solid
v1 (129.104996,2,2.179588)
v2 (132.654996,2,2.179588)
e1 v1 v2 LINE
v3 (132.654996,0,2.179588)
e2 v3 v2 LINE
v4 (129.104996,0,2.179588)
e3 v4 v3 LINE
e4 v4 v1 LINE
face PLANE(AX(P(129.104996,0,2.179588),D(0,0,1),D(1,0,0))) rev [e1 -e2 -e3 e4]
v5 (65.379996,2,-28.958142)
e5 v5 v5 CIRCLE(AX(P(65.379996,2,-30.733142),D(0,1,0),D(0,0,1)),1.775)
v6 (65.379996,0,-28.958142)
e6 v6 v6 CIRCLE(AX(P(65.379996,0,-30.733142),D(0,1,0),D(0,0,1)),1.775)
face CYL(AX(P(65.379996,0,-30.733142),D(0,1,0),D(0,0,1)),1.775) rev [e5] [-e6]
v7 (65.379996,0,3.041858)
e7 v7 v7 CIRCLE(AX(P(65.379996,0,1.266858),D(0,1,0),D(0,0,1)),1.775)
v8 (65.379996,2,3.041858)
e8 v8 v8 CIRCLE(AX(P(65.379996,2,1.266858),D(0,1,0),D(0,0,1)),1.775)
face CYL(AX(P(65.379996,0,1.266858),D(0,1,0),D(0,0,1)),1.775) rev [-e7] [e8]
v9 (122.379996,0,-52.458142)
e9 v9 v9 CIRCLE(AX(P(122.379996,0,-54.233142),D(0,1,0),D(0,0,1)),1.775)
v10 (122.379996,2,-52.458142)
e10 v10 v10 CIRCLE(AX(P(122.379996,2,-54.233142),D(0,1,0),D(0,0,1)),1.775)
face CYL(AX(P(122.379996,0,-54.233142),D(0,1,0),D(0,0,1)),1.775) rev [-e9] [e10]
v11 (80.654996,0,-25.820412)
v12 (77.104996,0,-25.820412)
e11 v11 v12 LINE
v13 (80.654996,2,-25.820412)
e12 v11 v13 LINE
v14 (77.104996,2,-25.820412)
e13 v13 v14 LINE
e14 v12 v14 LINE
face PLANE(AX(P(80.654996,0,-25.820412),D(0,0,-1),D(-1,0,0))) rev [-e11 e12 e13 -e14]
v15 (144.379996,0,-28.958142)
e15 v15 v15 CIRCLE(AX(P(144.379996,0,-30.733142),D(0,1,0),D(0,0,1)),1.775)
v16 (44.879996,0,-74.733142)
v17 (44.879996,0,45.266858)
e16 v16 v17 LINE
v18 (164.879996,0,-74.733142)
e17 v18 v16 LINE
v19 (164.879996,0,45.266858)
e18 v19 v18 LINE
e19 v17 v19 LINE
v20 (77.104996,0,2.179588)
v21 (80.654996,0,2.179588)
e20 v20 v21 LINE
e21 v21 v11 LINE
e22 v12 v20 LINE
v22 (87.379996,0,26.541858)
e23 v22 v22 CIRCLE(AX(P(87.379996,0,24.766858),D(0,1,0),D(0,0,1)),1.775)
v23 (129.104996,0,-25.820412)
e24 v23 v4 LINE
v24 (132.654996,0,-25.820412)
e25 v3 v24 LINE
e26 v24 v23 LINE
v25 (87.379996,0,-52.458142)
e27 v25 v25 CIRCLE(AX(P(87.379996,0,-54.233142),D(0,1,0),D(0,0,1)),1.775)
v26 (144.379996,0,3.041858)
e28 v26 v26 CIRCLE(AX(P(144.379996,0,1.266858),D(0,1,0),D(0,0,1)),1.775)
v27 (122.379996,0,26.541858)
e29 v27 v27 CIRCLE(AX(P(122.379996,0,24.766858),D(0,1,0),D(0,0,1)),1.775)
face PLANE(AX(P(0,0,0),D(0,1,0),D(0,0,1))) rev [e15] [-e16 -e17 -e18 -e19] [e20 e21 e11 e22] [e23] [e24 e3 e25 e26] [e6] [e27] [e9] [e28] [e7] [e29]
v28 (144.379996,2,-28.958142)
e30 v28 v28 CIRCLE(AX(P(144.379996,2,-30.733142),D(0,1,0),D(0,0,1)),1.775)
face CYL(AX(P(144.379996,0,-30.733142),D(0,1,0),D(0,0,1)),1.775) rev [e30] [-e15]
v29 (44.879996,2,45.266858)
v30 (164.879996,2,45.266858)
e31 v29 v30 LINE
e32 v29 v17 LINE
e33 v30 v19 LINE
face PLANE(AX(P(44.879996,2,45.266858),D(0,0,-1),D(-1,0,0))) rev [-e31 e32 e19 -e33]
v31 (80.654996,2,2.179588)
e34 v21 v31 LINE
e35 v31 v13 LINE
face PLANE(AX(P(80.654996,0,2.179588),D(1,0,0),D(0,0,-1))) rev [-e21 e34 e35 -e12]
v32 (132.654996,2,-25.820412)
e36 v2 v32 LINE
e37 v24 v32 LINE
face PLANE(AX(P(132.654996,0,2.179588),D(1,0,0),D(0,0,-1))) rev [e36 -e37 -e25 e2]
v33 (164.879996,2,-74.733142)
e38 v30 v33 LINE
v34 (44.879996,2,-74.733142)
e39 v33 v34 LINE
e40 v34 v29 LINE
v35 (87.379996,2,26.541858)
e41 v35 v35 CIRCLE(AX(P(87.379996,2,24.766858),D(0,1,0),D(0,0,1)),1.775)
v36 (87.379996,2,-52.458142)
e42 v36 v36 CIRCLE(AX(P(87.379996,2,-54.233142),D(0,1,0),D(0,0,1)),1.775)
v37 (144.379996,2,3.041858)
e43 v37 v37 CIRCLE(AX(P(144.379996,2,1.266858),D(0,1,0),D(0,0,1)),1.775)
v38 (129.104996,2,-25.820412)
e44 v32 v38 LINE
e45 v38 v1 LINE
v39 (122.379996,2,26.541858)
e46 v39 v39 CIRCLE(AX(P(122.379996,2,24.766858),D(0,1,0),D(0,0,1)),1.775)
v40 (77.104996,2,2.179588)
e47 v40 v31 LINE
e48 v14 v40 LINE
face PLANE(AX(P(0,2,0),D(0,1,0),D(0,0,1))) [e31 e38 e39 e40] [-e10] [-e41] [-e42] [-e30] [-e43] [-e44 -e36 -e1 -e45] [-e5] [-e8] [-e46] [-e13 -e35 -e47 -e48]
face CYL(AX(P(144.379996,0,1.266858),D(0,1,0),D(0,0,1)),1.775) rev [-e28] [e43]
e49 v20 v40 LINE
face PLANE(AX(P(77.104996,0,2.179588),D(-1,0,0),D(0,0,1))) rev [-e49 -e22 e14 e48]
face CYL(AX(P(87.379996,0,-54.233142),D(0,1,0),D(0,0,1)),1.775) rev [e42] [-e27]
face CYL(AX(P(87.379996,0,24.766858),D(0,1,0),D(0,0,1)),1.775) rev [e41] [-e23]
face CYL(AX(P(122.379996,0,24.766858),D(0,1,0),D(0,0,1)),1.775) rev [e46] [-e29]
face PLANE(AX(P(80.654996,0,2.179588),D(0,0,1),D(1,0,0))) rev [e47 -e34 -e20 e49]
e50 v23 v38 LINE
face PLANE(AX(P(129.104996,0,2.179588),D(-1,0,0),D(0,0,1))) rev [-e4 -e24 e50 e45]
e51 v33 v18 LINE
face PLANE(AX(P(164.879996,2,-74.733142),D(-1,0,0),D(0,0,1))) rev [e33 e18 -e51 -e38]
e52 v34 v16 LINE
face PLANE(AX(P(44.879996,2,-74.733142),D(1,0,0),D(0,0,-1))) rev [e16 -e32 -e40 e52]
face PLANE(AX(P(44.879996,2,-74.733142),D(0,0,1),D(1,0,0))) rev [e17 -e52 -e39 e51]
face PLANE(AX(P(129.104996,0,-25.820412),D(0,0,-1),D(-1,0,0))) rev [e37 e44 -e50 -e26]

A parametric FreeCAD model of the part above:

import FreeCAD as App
import Part
import Sketcher

V = App.Vector
Q = App.Units.Quantity


def add_polygon(sketch, points):
    """Adds a closed chain of lines whose ends are joined by coincident constraints."""
    first, n = sketch.GeometryCount, len(points)
    for a, b in zip(points, points[1:] + points[:1]):
        sketch.addGeometry(Part.LineSegment(App.Vector(*a, 0), App.Vector(*b, 0)), False)
    for i in range(n):
        sketch.addConstraint(Sketcher.Constraint("Coincident", first + i, 2, first + (i + 1) % n, 1))

doc = App.newDocument("Part")
params = doc.addObject("Spreadsheet::Sheet", "Params")
for row, (alias, value) in enumerate([
    ("sketch1_width", "120 mm"),
    ("pad1_length", "2 mm"),
    ("sketch2_diameter", "3.55 mm"),
    ("sketch3_diameter", "3.55 mm"),
    ("sketch4_height", "28 mm"),
    ("sketch4_width", "3.55 mm"),
], start=1):
    params.set(f"A{row}", alias)
    params.set(f"B{row}", "=" + value)
    params.setAlias(f"B{row}", alias)

body = doc.addObject("PartDesign::Body", "Body")

# Sketch on XZ plane
sketch1 = doc.addObject("Sketcher::SketchObject", "Sketch")
body.addObject(sketch1)
sketch1.AttachmentSupport = (doc.XZ_Plane, [""])
sketch1.MapMode = "FlatFace"
add_polygon(sketch1, [(45, -75), (45, 45), (165, 45), (165, -75)])  # lines 0-3
sketch1.addConstraint([
    Sketcher.Constraint("Vertical", 0),
    Sketcher.Constraint("Horizontal", 1),
    Sketcher.Constraint("Vertical", 2),
    Sketcher.Constraint("Horizontal", 3),
    Sketcher.Constraint("Equal", 3, 0),
    Sketcher.Constraint("DistanceX", 1, 1, 1, 2, Q("120 mm")),
    Sketcher.Constraint("DistanceX", -1, 1, 0, 2, Q("44.879996 mm")),
    Sketcher.Constraint("DistanceY", -1, 1, 0, 2, Q("45.266858 mm")),
])
sketch1.setExpression("Constraints[9]", "Params.sketch1_width")
pad1 = doc.addObject("PartDesign::Pad", "Pad")
body.addObject(pad1)
pad1.Profile = sketch1
pad1.setExpression("Length", "Params.pad1_length")
pad1.Reversed = True

# Sketch on XZ plane
sketch2 = doc.addObject("Sketcher::SketchObject", "Sketch001")
body.addObject(sketch2)
sketch2.AttachmentSupport = (doc.XZ_Plane, [""])
sketch2.MapMode = "FlatFace"
sketch2.AttachmentOffset = App.Placement(V(0, 0, -2), App.Rotation())
sketch2.addGeometry([
    Part.Circle(V(65.4, -30.7, 0), V(0, 0, 1), 1.8),
    Part.Circle(V(65.4, 1.3, 0), V(0, 0, 1), 1.8),
    Part.Circle(V(144.4, 1.3, 0), V(0, 0, 1), 1.8),
    Part.Circle(V(144.4, -30.7, 0), V(0, 0, 1), 1.8),
], False)
sketch2.addConstraint([
    Sketcher.Constraint("Equal", 0, 1),
    Sketcher.Constraint("Equal", 1, 2),
    Sketcher.Constraint("Equal", 2, 3),
    Sketcher.Constraint("Horizontal", 1, 3, 2, 3),
    Sketcher.Constraint("Horizontal", 0, 3, 3, 3),
    Sketcher.Constraint("Vertical", 0, 3, 1, 3),
    Sketcher.Constraint("Vertical", 2, 3, 3, 3),
    Sketcher.Constraint("Diameter", 0, Q("3.55 mm")),
    Sketcher.Constraint("DistanceY", 0, 3, 1, 3, Q("32 mm")),
    Sketcher.Constraint("DistanceX", 1, 3, 2, 3, Q("79 mm")),
    Sketcher.Constraint("DistanceX", -1, 1, 0, 3, Q("65.379996 mm")),
    Sketcher.Constraint("DistanceY", 0, 3, -1, 1, Q("30.733142 mm")),
])
sketch2.setExpression("Constraints[7]", "Params.sketch2_diameter")
pocket1 = doc.addObject("PartDesign::Pocket", "Pocket")
body.addObject(pocket1)
pocket1.Profile = sketch2
pocket1.Type = "ThroughAll"
pocket1.Reversed = True

# Sketch on XZ plane
sketch3 = doc.addObject("Sketcher::SketchObject", "Sketch002")
body.addObject(sketch3)
sketch3.AttachmentSupport = (doc.XZ_Plane, [""])
sketch3.MapMode = "FlatFace"
sketch3.AttachmentOffset = App.Placement(V(0, 0, -2), App.Rotation())
sketch3.addGeometry([
    Part.Circle(V(87.4, 24.8, 0), V(0, 0, 1), 1.8),
    Part.Circle(V(87.4, -54.2, 0), V(0, 0, 1), 1.8),
    Part.Circle(V(122.4, 24.8, 0), V(0, 0, 1), 1.8),
    Part.Circle(V(122.4, -54.2, 0), V(0, 0, 1), 1.8),
], False)
sketch3.addConstraint([
    Sketcher.Constraint("Equal", 0, 1),
    Sketcher.Constraint("Equal", 1, 2),
    Sketcher.Constraint("Equal", 2, 3),
    Sketcher.Constraint("Horizontal", 0, 3, 2, 3),
    Sketcher.Constraint("Horizontal", 1, 3, 3, 3),
    Sketcher.Constraint("Vertical", 0, 3, 1, 3),
    Sketcher.Constraint("Vertical", 2, 3, 3, 3),
    Sketcher.Constraint("Diameter", 0, Q("3.55 mm")),
    Sketcher.Constraint("DistanceY", 1, 3, 0, 3, Q("79 mm")),
    Sketcher.Constraint("DistanceX", 0, 3, 2, 3, Q("35 mm")),
    Sketcher.Constraint("DistanceX", -1, 1, 0, 3, Q("87.379996 mm")),
    Sketcher.Constraint("DistanceY", -1, 1, 0, 3, Q("24.766858 mm")),
])
sketch3.setExpression("Constraints[7]", "Params.sketch3_diameter")
pocket2 = doc.addObject("PartDesign::Pocket", "Pocket001")
body.addObject(pocket2)
pocket2.Profile = sketch3
pocket2.Type = "ThroughAll"
pocket2.Reversed = True

# Sketch on XZ plane
sketch4 = doc.addObject("Sketcher::SketchObject", "Sketch003")
body.addObject(sketch4)
sketch4.AttachmentSupport = (doc.XZ_Plane, [""])
sketch4.MapMode = "FlatFace"
sketch4.AttachmentOffset = App.Placement(V(0, 0, -2), App.Rotation())
add_polygon(sketch4, [(77.1, -25.8), (77.1, 2.2), (80.7, 2.2), (80.7, -25.8)])  # lines 0-3
add_polygon(sketch4, [(129.1, -25.8), (129.1, 2.2), (132.7, 2.2), (132.7, -25.8)])  # lines 4-7
sketch4.addConstraint([
    Sketcher.Constraint("Vertical", 0),
    Sketcher.Constraint("Horizontal", 1),
    Sketcher.Constraint("Vertical", 2),
    Sketcher.Constraint("Horizontal", 3),
    Sketcher.Constraint("Vertical", 4),
    Sketcher.Constraint("Horizontal", 5),
    Sketcher.Constraint("Vertical", 6),
    Sketcher.Constraint("Horizontal", 7),
    Sketcher.Constraint("Horizontal", 1, 2, 4, 2),
    Sketcher.Constraint("Horizontal", 3, 2, 6, 2),
    Sketcher.Constraint("Equal", 3, 5),
    Sketcher.Constraint("DistanceY", 0, 1, 0, 2, Q("28 mm")),
    Sketcher.Constraint("DistanceX", 0, 2, 4, 2, Q("52 mm")),
    Sketcher.Constraint("DistanceX", 1, 1, 1, 2, Q("3.55 mm")),
    Sketcher.Constraint("DistanceX", -1, 1, 0, 2, Q("77.104996 mm")),
    Sketcher.Constraint("DistanceY", -1, 1, 0, 2, Q("2.179588 mm")),
])
sketch4.setExpression("Constraints[19]", "Params.sketch4_height")
sketch4.setExpression("Constraints[21]", "Params.sketch4_width")
pocket3 = doc.addObject("PartDesign::Pocket", "Pocket002")
body.addObject(pocket3)
pocket3.Profile = sketch4
pocket3.Type = "ThroughAll"
pocket3.Reversed = True

doc.recompute()
